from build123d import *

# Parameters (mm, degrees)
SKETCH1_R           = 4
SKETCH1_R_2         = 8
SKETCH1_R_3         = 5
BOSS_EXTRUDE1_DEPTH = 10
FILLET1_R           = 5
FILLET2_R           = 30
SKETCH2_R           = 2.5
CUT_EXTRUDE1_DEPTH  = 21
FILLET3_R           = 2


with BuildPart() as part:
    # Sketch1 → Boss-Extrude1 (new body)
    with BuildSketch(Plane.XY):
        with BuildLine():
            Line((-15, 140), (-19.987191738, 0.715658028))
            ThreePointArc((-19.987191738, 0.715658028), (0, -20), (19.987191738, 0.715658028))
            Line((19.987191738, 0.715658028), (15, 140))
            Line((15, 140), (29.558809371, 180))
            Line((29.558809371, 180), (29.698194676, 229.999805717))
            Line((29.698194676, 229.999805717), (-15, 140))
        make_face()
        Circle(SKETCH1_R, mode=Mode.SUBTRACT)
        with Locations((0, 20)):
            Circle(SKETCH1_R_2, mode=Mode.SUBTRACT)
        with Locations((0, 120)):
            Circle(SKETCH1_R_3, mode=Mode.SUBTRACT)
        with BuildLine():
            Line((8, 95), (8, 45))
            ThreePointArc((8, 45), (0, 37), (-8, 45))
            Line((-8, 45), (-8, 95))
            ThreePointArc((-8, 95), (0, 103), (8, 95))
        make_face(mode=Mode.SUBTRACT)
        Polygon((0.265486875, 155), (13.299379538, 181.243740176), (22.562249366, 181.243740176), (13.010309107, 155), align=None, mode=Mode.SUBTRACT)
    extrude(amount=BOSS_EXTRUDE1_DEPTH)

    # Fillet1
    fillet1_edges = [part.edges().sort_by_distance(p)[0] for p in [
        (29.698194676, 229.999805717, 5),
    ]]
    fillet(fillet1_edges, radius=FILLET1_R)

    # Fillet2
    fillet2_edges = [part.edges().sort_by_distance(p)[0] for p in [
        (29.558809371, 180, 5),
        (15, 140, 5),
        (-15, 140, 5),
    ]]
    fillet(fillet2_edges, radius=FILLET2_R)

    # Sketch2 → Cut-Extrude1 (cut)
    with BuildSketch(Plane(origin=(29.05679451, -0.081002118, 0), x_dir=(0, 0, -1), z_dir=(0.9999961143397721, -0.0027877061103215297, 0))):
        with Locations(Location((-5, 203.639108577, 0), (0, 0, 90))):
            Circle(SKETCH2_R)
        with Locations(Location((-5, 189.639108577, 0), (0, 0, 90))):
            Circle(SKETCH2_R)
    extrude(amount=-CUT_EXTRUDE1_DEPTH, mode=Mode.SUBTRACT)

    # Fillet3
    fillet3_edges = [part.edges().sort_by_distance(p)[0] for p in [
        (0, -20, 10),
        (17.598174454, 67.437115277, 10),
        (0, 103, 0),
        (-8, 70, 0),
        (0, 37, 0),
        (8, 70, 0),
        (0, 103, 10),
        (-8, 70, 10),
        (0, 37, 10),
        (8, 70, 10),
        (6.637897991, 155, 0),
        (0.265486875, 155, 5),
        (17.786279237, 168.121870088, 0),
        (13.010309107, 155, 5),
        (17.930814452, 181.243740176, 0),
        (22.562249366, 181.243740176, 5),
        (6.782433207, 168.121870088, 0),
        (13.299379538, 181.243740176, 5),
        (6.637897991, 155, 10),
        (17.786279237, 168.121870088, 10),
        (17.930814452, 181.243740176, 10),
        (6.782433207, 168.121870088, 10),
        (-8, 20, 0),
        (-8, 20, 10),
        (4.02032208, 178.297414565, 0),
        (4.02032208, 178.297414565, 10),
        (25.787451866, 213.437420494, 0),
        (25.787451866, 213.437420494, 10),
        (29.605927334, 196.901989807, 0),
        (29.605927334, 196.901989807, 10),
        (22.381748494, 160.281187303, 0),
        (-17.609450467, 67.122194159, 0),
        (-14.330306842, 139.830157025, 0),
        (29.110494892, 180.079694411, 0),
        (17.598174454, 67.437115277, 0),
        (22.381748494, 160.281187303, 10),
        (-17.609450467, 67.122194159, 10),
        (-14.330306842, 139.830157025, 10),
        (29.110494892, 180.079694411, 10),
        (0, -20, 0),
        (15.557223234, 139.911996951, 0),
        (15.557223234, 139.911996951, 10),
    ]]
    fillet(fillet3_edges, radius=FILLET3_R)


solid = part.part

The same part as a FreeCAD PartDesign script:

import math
import FreeCAD as App
import Part
import Sketcher
from FreeCAD import Vector
Q = App.Units.Quantity


def edges_at(feature, points):
    """Names of the edges that pass closest to the given points."""
    edges = feature.Shape.Edges
    near = lambda p: min(range(len(edges)), key=lambda i: edges[i].distToShape(Part.Vertex(*p))[0])
    return sorted({f"Edge{near(p) + 1}" for p in points})


def add_polygon(sketch, points):
    """Adds a closed chain of lines whose ends are joined by coincident constraints."""
    first, n = sketch.GeometryCount, len(points)
    for a, b in zip(points, points[1:] + points[:1]):
        sketch.addGeometry(Part.LineSegment(App.Vector(*a, 0), App.Vector(*b, 0)), False)
    for i in range(n):
        sketch.addConstraint(Sketcher.Constraint("Coincident", first + i, 2, first + (i + 1) % n, 1))

doc = App.newDocument("Part")
body = doc.addObject("PartDesign::Body", "Body")

sketch1 = body.newObject("Sketcher::SketchObject", "Sketch")
sketch1.AttachmentSupport = (doc.getObject("XY_Plane"), [""])
sketch1.MapMode = "FlatFace"
sketch1.addGeometry(Part.LineSegment(Vector(-15, 140, 0), Vector(-20, 0.7, 0)), False)
sketch1.addGeometry(Part.ArcOfCircle(Part.Circle(Vector(0, 0, 0), Vector(0, 0, 1), 20), math.radians(178), math.radians(362)), False)
sketch1.addGeometry(Part.LineSegment(Vector(20, 0.7, 0), Vector(15, 140, 0)), False)
sketch1.addGeometry(Part.LineSegment(Vector(15, 140, 0), Vector(29.6, 180, 0)), False)
sketch1.addGeometry(Part.LineSegment(Vector(29.6, 180, 0), Vector(29.7, 230, 0)), False)
sketch1.addGeometry(Part.LineSegment(Vector(29.7, 230, 0), Vector(-15, 140, 0)), False)
sketch1.addGeometry(Part.Circle(Vector(0, 0, 0), Vector(0, 0, 1), 4), False)
sketch1.addGeometry(Part.Circle(Vector(0, 20, 0), Vector(0, 0, 1), 8), False)
sketch1.addGeometry(Part.ArcOfCircle(Part.Circle(Vector(0, 95, 0), Vector(0, 0, 1), 8), math.radians(0), math.radians(180)), False)
sketch1.addGeometry(Part.LineSegment(Vector(8, 95, 0), Vector(8, 45, 0)), False)
sketch1.addGeometry(Part.ArcOfCircle(Part.Circle(Vector(0, 45, 0), Vector(0, 0, 1), 8), math.radians(180), math.radians(360)), False)
sketch1.addGeometry(Part.LineSegment(Vector(-8, 45, 0), Vector(-8, 95, 0)), False)
sketch1.addGeometry(Part.Circle(Vector(0, 120, 0), Vector(0, 0, 1), 5), False)
add_polygon(sketch1, [(13, 155), (0.3, 155), (13.3, 181.2), (22.6, 181.2)])
sketch1.addConstraint(Sketcher.Constraint("Tangent", 0, 2, 1, 1))
sketch1.addConstraint(Sketcher.Constraint("Tangent", 1, 2, 2, 1))
sketch1.addConstraint(Sketcher.Constraint("Coincident", 2, 2, 3, 1))
sketch1.addConstraint(Sketcher.Constraint("Coincident", 3, 2, 4, 1))
sketch1.addConstraint(Sketcher.Constraint("Coincident", 4, 2, 5, 1))
sketch1.addConstraint(Sketcher.Constraint("Coincident", 5, 2, 0, 1))
sketch1.addConstraint(Sketcher.Constraint("Tangent", 8, 1, 9, 1))
sketch1.addConstraint(Sketcher.Constraint("Tangent", 9, 2, 10, 2))
sketch1.addConstraint(Sketcher.Constraint("Tangent", 10, 1, 11, 1))
sketch1.addConstraint(Sketcher.Constraint("Tangent", 11, 2, 8, 2))
sketch1.addConstraint(Sketcher.Constraint("Vertical", 9))
sketch1.addConstraint(Sketcher.Constraint("Vertical", 11))
sketch1.addConstraint(Sketcher.Constraint("Horizontal", 13))
sketch1.addConstraint(Sketcher.Constraint("Horizontal", 15))
sketch1.addConstraint(Sketcher.Constraint("Coincident", 1, 3, -1, 1))
sketch1.addConstraint(Sketcher.Constraint("Coincident", 6, 3, -1, 1))
sketch1.addConstraint(Sketcher.Constraint("Equal", 7, 8))
sketch1.addConstraint(Sketcher.Constraint("Symmetric", 2, 2, 5, 2, -2))
sketch1.addConstraint(Sketcher.Constraint("PointOnObject", 7, 3, -2))
sketch1.addConstraint(Sketcher.Constraint("PointOnObject", 8, 3, -2))
sketch1.addConstraint(Sketcher.Constraint("PointOnObject", 12, 3, -2))
sketch1.addConstraint(Sketcher.Constraint("Parallel", 5, 14))
sketch1.addConstraint(Sketcher.Constraint("Parallel", 3, 16))
sketch1.addConstraint(Sketcher.Constraint("Diameter", 6, 8.0))
sketch1.addConstraint(Sketcher.Constraint("Diameter", 7, 16.0))
sketch1.addConstraint(Sketcher.Constraint("Diameter", 12, 10.0))
sketch1.addConstraint(Sketcher.Constraint("Radius", 1, 20.0))
sketch1.addConstraint(Sketcher.Constraint("DistanceY", 9, 2, 9, 1, 50.0))
sketch1.addConstraint(Sketcher.Constraint("Angle", 3, Q("70 deg")))
sketch1.addConstraint(Sketcher.Constraint("Distance", 4, 50.0))
sketch1.addConstraint(Sketcher.Constraint("DistanceY", -1, 1, 7, 3, 20.0))
sketch1.addConstraint(Sketcher.Constraint("DistanceY", -1, 1, 8, 3, 95.0))
sketch1.addConstraint(Sketcher.Constraint("DistanceY", -1, 1, 12, 3, 120.0))
sketch1.addConstraint(Sketcher.Constraint("DistanceX", -1, 1, 2, 2, 15.0))
sketch1.addConstraint(Sketcher.Constraint("DistanceY", -1, 1, 2, 2, 140.0))
sketch1.addConstraint(Sketcher.Constraint("DistanceY", -1, 1, 3, 2, 180.0))
sketch1.addConstraint(Sketcher.Constraint("DistanceY", -1, 1, 13, 2, 155.0))
sketch1.addConstraint(Sketcher.Constraint("DistanceX", 15, 1, 15, 2, 9.26287))
sketch1.addConstraint(Sketcher.Constraint("DistanceX", 16, 2, 3, 2, 16.5485))
sketch1.addConstraint(Sketcher.Constraint("DistanceX", 13, 2, 13, 1, 12.744822))
sketch1.addConstraint(Sketcher.Constraint("DistanceX", -1, 1, 14, 2, 13.29938))
pad1 = body.newObject("PartDesign::Pad", "Pad")
pad1.Profile = sketch1
pad1.Length = 10
doc.recompute()

fillet = body.newObject("PartDesign::Fillet", "Fillet")
fillet.Base = (pad1, edges_at(pad1, [(29.698, 230, 5)]))
fillet.Radius = 5
doc.recompute()

fillet2 = body.newObject("PartDesign::Fillet", "Fillet001")
fillet2.Base = (fillet, edges_at(fillet, [(29.559, 180, 5), (15, 140, 5), (-15, 140, 5)]))
fillet2.Radius = 30

sketch2 = body.newObject("Sketcher::SketchObject", "Sketch001")
sketch2.Placement = App.Placement(Vector(29.056795, -0.081002, 0), App.Rotation(Vector(0, 0, -1), Vector(0.002787706, 0.999996114, 0), Vector(0.999996114, -0.002787706, 0), "ZXY"))
sketch2.addGeometry(Part.Circle(Vector(-5, 203.6, 0), Vector(0, 0, 1), 2.5), False)
sketch2.addGeometry(Part.Circle(Vector(-5, 189.6, 0), Vector(0, 0, 1), 2.5), False)
sketch2.addConstraint(Sketcher.Constraint("Equal", 0, 1))
sketch2.addConstraint(Sketcher.Constraint("Vertical", 0, 3, 1, 3))
sketch2.addConstraint(Sketcher.Constraint("Diameter", 0, 5.0))
sketch2.addConstraint(Sketcher.Constraint("DistanceX", 0, 3, -1, 1, 5.0))
sketch2.addConstraint(Sketcher.Constraint("DistanceY", 1, 3, 0, 3, 14.0))
sketch2.addConstraint(Sketcher.Constraint("DistanceY", -1, 1, 0, 3, 203.639108))
pocket1 = body.newObject("PartDesign::Pocket", "Pocket")
pocket1.Profile = sketch2
pocket1.Length = 21
doc.recompute()

fillet3 = body.newObject("PartDesign::Fillet", "Fillet002")
fillet3.Base = (pocket1, edges_at(pocket1, [
    (0, -20, 10),
    (17.598, 67.437, 10),
    (0, 103, 0),
    (-8, 70, 0),
    (0, 37, 0),
    (8, 70, 0),
    (0, 103, 10),
    (-8, 70, 10),
    (0, 37, 10),
    (8, 70, 10),
    (6.638, 155, 0),
    (0.265, 155, 5),
    (17.786, 168.122, 0),
    (13.01, 155, 5),
    (17.931, 181.244, 0),
    (22.562, 181.244, 5),
    (6.782, 168.122, 0),
    (13.299, 181.244, 5),
    (6.638, 155, 10),
    (17.786, 168.122, 10),
    (17.931, 181.244, 10),
    (6.782, 168.122, 10),
    (-8, 20, 0),
    (-8, 20, 10),
    (4.02, 178.297, 0),
    (4.02, 178.297, 10),
    (25.787, 213.437, 0),
    (25.787, 213.437, 10),
    (29.606, 196.902, 0),
    (29.606, 196.902, 10),
    (22.382, 160.281, 0),
    (-17.609, 67.122, 0),
    (-14.33, 139.83, 0),
    (29.11, 180.08, 0),
    (17.598, 67.437, 0),
    (22.382, 160.281, 10),
    (-17.609, 67.122, 10),
    (-14.33, 139.83, 10),
    (29.11, 180.08, 10),
    (0, -20, 0),
    (15.557, 139.912, 0),
    (15.557, 139.912, 10),
]))
fillet3.Radius = 2

doc.recompute()
